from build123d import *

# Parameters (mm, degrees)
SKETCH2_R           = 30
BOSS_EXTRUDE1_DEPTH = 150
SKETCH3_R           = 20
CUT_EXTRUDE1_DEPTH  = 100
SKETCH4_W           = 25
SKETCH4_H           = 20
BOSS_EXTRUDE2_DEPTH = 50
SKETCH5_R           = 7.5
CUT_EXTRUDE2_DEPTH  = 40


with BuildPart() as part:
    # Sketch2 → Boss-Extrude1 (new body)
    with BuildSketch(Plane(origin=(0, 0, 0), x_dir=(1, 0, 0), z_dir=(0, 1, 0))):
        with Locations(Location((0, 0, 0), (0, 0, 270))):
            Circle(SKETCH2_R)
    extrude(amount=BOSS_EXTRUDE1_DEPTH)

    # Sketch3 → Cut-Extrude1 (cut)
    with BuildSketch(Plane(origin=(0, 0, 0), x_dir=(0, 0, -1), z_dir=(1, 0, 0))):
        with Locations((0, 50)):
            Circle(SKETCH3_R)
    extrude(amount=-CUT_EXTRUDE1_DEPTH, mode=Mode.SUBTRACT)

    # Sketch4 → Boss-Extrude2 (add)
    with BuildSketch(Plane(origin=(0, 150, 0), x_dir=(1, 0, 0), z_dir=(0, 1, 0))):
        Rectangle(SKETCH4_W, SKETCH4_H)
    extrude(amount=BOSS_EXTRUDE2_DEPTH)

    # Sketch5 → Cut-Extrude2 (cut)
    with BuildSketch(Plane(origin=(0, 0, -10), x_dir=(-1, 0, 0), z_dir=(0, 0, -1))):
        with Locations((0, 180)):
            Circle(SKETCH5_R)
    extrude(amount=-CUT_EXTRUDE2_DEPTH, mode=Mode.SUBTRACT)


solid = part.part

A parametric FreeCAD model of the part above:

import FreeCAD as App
import Part
import Sketcher

V = App.Vector

doc = App.newDocument("Part")
body = doc.addObject("PartDesign::Body", "Body")

# Sketch on XZ plane
sketch1 = body.newObject("Sketcher::SketchObject", "Sketch")
sketch1.AttachmentSupport = (doc.getObject("XZ_Plane"), [""])
sketch1.MapMode = "FlatFace"
sketch1.addGeometry(Part.Circle(V(0, 0, 0), V(0, 0, 1), 30), False)
sketch1.addConstraint(Sketcher.Constraint("Coincident", 0, 3, -1, 1))
sketch1.addConstraint(Sketcher.Constraint("Diameter", 0, 60.0))
pad1 = body.newObject("PartDesign::Pad", "Pad")
pad1.Profile = sketch1
pad1.Length = 150
pad1.Reversed = True

# Sketch on YZ plane
sketch2 = body.newObject("Sketcher::SketchObject", "Sketch001")
sketch2.AttachmentSupport = (doc.getObject("YZ_Plane"), [""])
sketch2.MapMode = "FlatFace"
sketch2.addGeometry(Part.Circle(V(50, 0, 0), V(0, 0, 1), 20), False)
sketch2.addConstraint(Sketcher.Constraint("PointOnObject", 0, 3, -1))
sketch2.addConstraint(Sketcher.Constraint("Diameter", 0, 40.0))
sketch2.addConstraint(Sketcher.Constraint("DistanceX", -1, 1, 0, 3, 50.0))
pocket1 = body.newObject("PartDesign::Pocket", "Pocket")
pocket1.Profile = sketch2
pocket1.Length = 100

# Sketch on XZ plane
sketch3 = body.newObject("Sketcher::SketchObject", "Sketch002")
sketch3.AttachmentSupport = (doc.getObject("XZ_Plane"), [""])
sketch3.MapMode = "FlatFace"
sketch3.AttachmentOffset = App.Placement(V(0, 0, -150), App.Rotation())
sketch3.addGeometry(Part.LineSegment(V(-12.5, -10, 0), V(-12.5, 10, 0)), False)
sketch3.addGeometry(Part.LineSegment(V(-12.5, 10, 0), V(12.5, 10, 0)), False)
sketch3.addGeometry(Part.LineSegment(V(12.5, 10, 0), V(12.5, -10, 0)), False)
sketch3.addGeometry(Part.LineSegment(V(12.5, -10, 0), V(-12.5, -10, 0)), False)
sketch3.addConstraint(Sketcher.Constraint("Coincident", 0, 2, 1, 1))
sketch3.addConstraint(Sketcher.Constraint("Coincident", 1, 2, 2, 1))
sketch3.addConstraint(Sketcher.Constraint("Coincident", 2, 2, 3, 1))
sketch3.addConstraint(Sketcher.Constraint("Coincident", 3, 2, 0, 1))
sketch3.addConstraint(Sketcher.Constraint("Vertical", 0))
sketch3.addConstraint(Sketcher.Constraint("Horizontal", 1))
sketch3.addConstraint(Sketcher.Constraint("Vertical", 2))
sketch3.addConstraint(Sketcher.Constraint("Horizontal", 3))
sketch3.addConstraint(Sketcher.Constraint("Symmetric", 0, 2, 2, 2, -1, 1))
sketch3.addConstraint(Sketcher.Constraint("DistanceX", 1, 1, 1, 2, 25.0))
sketch3.addConstraint(Sketcher.Constraint("DistanceY", 0, 1, 0, 2, 20.0))
pad2 = body.newObject("PartDesign::Pad", "Pad001")
pad2.Profile = sketch3
pad2.Length = 50
pad2.Reversed = True

# Sketch on XY plane
sketch4 = body.newObject("Sketcher::SketchObject", "Sketch003")
sketch4.AttachmentSupport = (doc.getObject("XY_Plane"), [""])
sketch4.MapMode = "FlatFace"
sketch4.AttachmentOffset = App.Placement(V(0, 0, -10), App.Rotation())
sketch4.addGeometry(Part.Circle(V(0, 180, 0), V(0, 0, 1), 7.5), False)
sketch4.addConstraint(Sketcher.Constraint("PointOnObject", 0, 3, -2))
sketch4.addConstraint(Sketcher.Constraint("Diameter", 0, 15.0))
sketch4.addConstraint(Sketcher.Constraint("DistanceY", -1, 1, 0, 3, 180.0))
pocket2 = body.newObject("PartDesign::Pocket", "Pocket001")
pocket2.Profile = sketch4
pocket2.Length = 40
pocket2.Reversed = True

doc.recompute()
